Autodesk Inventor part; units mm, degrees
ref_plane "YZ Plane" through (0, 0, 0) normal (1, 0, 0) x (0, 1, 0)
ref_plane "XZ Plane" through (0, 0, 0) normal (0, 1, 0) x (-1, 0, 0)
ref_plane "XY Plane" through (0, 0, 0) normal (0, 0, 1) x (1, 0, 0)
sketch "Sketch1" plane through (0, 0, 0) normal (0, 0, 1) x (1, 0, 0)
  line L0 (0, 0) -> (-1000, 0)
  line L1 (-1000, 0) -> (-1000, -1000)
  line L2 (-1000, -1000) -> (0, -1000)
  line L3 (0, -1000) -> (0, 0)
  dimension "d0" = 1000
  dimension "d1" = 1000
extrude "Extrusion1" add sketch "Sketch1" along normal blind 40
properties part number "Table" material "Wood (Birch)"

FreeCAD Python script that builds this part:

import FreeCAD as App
import Part
import Sketcher
Q = App.Units.Quantity


def add_polygon(sketch, points):
    """Adds a closed chain of lines whose ends are joined by coincident constraints."""
    first, n = sketch.GeometryCount, len(points)
    for a, b in zip(points, points[1:] + points[:1]):
        sketch.addGeometry(Part.LineSegment(App.Vector(*a, 0), App.Vector(*b, 0)), False)
    for i in range(n):
        sketch.addConstraint(Sketcher.Constraint("Coincident", first + i, 2, first + (i + 1) % n, 1))

doc = App.newDocument("Part")
params = doc.addObject("Spreadsheet::Sheet", "Params")
for row, (alias, value) in enumerate([
    ("sketch1_width", "1000 mm"),
    ("pad1_length", "40 mm"),
], start=1):
    params.set(f"A{row}", alias)
    params.set(f"B{row}", "=" + value)
    params.setAlias(f"B{row}", alias)

body = doc.addObject("PartDesign::Body", "Body")

sketch1 = doc.addObject("Sketcher::SketchObject", "Sketch")
body.addObject(sketch1)
sketch1.AttachmentSupport = (doc.XY_Plane, [""])
sketch1.MapMode = "FlatFace"
add_polygon(sketch1, [(0, -1000), (0, 0), (-1000, 0), (-1000, -1000)])
sketch1.addConstraint([
    Sketcher.Constraint("Vertical", 0),
    Sketcher.Constraint("Horizontal", 1),
    Sketcher.Constraint("Vertical", 2),
    Sketcher.Constraint("Horizontal", 3),
    Sketcher.Constraint("Coincident", 0, 2, -1, 1),
    Sketcher.Constraint("Equal", 3, 0),
    Sketcher.Constraint("DistanceX", 1, 2, 1, 1, Q("1000 mm")),
])
sketch1.setExpression("Constraints[10]", "Params.sketch1_width")
pad1 = doc.addObject("PartDesign::Pad", "Pad")
body.addObject(pad1)
pad1.Profile = sketch1
pad1.setExpression("Length", "Params.pad1_length")

doc.recompute()
